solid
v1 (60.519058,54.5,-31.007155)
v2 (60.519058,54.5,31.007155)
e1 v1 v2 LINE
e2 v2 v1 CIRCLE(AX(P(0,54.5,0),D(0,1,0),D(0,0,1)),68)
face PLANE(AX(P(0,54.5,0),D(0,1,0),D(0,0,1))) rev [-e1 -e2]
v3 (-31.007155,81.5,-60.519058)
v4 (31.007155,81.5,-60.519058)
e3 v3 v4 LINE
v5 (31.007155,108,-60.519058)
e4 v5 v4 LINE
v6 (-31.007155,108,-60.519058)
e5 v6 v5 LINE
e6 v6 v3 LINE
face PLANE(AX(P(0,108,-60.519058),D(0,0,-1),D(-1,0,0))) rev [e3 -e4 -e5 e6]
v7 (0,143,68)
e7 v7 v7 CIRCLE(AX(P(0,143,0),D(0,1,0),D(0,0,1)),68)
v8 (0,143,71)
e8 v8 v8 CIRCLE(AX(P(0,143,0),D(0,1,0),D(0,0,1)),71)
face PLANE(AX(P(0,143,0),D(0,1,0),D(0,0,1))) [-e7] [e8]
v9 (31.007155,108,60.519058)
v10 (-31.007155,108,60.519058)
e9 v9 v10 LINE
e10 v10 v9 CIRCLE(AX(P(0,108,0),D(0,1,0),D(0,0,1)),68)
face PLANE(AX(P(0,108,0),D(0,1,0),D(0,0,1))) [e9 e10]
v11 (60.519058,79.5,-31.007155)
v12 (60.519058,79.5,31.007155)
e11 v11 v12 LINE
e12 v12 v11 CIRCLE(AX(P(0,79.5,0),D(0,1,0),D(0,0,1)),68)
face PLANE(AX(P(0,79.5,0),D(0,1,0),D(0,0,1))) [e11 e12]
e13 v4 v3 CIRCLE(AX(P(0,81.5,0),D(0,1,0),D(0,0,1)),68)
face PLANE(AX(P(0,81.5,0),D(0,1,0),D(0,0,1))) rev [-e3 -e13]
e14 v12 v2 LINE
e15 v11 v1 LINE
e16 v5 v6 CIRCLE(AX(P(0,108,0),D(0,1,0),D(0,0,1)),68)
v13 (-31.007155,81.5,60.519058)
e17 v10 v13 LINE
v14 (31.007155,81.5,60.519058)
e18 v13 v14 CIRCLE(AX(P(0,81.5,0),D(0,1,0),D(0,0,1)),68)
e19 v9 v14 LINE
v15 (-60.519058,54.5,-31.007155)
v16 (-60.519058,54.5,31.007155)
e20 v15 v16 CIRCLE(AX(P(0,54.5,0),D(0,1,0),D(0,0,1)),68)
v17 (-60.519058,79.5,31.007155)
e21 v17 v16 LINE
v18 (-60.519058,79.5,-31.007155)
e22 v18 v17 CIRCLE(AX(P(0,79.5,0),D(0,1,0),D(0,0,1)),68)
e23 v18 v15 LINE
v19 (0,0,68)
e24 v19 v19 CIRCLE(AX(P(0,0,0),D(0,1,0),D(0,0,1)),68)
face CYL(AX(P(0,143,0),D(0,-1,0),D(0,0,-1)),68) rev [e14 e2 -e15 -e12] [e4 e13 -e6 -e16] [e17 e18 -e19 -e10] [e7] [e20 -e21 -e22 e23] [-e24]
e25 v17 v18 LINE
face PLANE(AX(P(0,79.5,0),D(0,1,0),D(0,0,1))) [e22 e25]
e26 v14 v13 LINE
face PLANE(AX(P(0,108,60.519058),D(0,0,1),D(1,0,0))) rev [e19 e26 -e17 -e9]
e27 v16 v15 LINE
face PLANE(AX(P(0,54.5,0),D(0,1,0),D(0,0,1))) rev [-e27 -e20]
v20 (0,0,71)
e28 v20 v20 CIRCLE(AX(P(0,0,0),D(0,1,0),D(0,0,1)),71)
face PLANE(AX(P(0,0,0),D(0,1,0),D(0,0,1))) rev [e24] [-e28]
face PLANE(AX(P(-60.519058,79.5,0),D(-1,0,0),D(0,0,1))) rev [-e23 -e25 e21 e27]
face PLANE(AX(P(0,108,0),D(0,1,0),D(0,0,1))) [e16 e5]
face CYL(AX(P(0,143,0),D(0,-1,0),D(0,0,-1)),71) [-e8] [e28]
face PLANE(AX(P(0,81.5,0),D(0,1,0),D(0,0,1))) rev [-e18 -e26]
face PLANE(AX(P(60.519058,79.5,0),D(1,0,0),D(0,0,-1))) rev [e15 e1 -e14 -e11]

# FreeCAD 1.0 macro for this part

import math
import FreeCAD as App
import Part
import Sketcher

V = App.Vector
Q = App.Units.Quantity

doc = App.newDocument("Part")
body = doc.addObject("PartDesign::Body", "Body")

sketch1 = doc.addObject("Sketcher::SketchObject", "Sketch")
body.addObject(sketch1)
sketch1.AttachmentSupport = (doc.XZ_Plane, [""])
sketch1.MapMode = "FlatFace"
sketch1.addGeometry(Part.Circle(V(0, 0, 0), V(0, 0, 1), 71), False)
sketch1.addGeometry(Part.Circle(V(0, 0, 0), V(0, 0, 1), 68), False)
sketch1.addConstraint(Sketcher.Constraint("Coincident", 0, 3, -1, 1))
sketch1.addConstraint(Sketcher.Constraint("Coincident", 1, 3, -1, 1))
sketch1.addConstraint(Sketcher.Constraint("Diameter", 0, Q("142 mm")))
sketch1.addConstraint(Sketcher.Constraint("Diameter", 1, Q("136 mm")))
pad1 = doc.addObject("PartDesign::Pad", "Pad")
body.addObject(pad1)
pad1.Profile = sketch1
pad1.Length = 143
pad1.Reversed = True

sketch2 = doc.addObject("Sketcher::SketchObject", "Sketch001")
body.addObject(sketch2)
sketch2.AttachmentSupport = (doc.XZ_Plane, [""])
sketch2.MapMode = "FlatFace"
sketch2.AttachmentOffset = App.Placement(V(0, 0, -54.5), App.Rotation())
sketch2.addGeometry(Part.LineSegment(V(-61, 31, 0), V(-61, -31, 0)), False)
sketch2.addGeometry(Part.ArcOfCircle(Part.Circle(V(0, 0, 0), V(0, 0, 1), 68), math.radians(153), math.radians(207)), False)
sketch2.addGeometry(Part.ArcOfCircle(Part.Circle(V(0, 0, 0), V(0, 0, 1), 68), math.radians(0), math.radians(27)), False)
sketch2.addGeometry(Part.ArcOfCircle(Part.Circle(V(0, 0, 0), V(0, 0, 1), 68), math.radians(-27), math.radians(0)), False)
sketch2.addGeometry(Part.LineSegment(V(61, -31, 0), V(61, 31, 0)), False)
sketch2.addConstraint(Sketcher.Constraint("Coincident", 0, 1, 1, 1))
sketch2.addConstraint(Sketcher.Constraint("Coincident", 1, 2, 0, 2))
sketch2.addConstraint(Sketcher.Constraint("Tangent", 2, 1, 3, 2))
sketch2.addConstraint(Sketcher.Constraint("Coincident", 3, 1, 4, 1))
sketch2.addConstraint(Sketcher.Constraint("Coincident", 4, 2, 2, 2))
sketch2.addConstraint(Sketcher.Constraint("Vertical", 0))
sketch2.addConstraint(Sketcher.Constraint("Vertical", 4))
sketch2.addConstraint(Sketcher.Constraint("Coincident", 1, 3, -1, 1))
sketch2.addConstraint(Sketcher.Constraint("Coincident", 2, 3, -1, 1))
sketch2.addConstraint(Sketcher.Constraint("Equal", 1, 2))
sketch2.addConstraint(Sketcher.Constraint("Equal", 2, 3))
sketch2.addConstraint(Sketcher.Constraint("PointOnObject", 2, 1, -1))
sketch2.addConstraint(Sketcher.Constraint("Horizontal", 1, 2, 3, 1))
sketch2.addConstraint(Sketcher.Constraint("Radius", 1, Q("68 mm")))
sketch2.addConstraint(Sketcher.Constraint("DistanceY", 0, 2, 0, 1, Q("62.01431 mm")))
pad2 = doc.addObject("PartDesign::Pad", "Pad001")
body.addObject(pad2)
pad2.Profile = sketch2
pad2.Length = 25
pad2.Reversed = True

sketch3 = doc.addObject("Sketcher::SketchObject", "Sketch002")
body.addObject(sketch3)
sketch3.AttachmentSupport = (doc.XZ_Plane, [""])
sketch3.MapMode = "FlatFace"
sketch3.AttachmentOffset = App.Placement(V(0, 0, -81.5), App.Rotation())
sketch3.addGeometry(Part.ArcOfCircle(Part.Circle(V(0, 0, 0), V(0, 0, 1), 68), math.radians(63), math.radians(117)), False)
sketch3.addGeometry(Part.LineSegment(V(31, 61, 0), V(-31, 61, 0)), False)
sketch3.addGeometry(Part.ArcOfCircle(Part.Circle(V(0, 0, 0), V(0, 0, 1), 68), math.radians(-117), math.radians(-63)), False)
sketch3.addGeometry(Part.LineSegment(V(-31, -61, 0), V(31, -61, 0)), False)
sketch3.addConstraint(Sketcher.Constraint("Coincident", 0, 1, 1, 1))
sketch3.addConstraint(Sketcher.Constraint("Coincident", 1, 2, 0, 2))
sketch3.addConstraint(Sketcher.Constraint("Coincident", 2, 1, 3, 1))
sketch3.addConstraint(Sketcher.Constraint("Coincident", 3, 2, 2, 2))
sketch3.addConstraint(Sketcher.Constraint("Horizontal", 1))
sketch3.addConstraint(Sketcher.Constraint("Horizontal", 3))
sketch3.addConstraint(Sketcher.Constraint("Coincident", 0, 3, -1, 1))
sketch3.addConstraint(Sketcher.Constraint("Coincident", 2, 3, -1, 1))
sketch3.addConstraint(Sketcher.Constraint("Equal", 0, 2))
sketch3.addConstraint(Sketcher.Constraint("Vertical", 1, 2, 2, 1))
sketch3.addConstraint(Sketcher.Constraint("Radius", 0, Q("68 mm")))
sketch3.addConstraint(Sketcher.Constraint("DistanceX", 1, 2, 1, 1, Q("62.01431 mm")))
pad3 = doc.addObject("PartDesign::Pad", "Pad002")
body.addObject(pad3)
pad3.Profile = sketch3
pad3.Length = 26.5
pad3.Reversed = True

doc.recompute()
